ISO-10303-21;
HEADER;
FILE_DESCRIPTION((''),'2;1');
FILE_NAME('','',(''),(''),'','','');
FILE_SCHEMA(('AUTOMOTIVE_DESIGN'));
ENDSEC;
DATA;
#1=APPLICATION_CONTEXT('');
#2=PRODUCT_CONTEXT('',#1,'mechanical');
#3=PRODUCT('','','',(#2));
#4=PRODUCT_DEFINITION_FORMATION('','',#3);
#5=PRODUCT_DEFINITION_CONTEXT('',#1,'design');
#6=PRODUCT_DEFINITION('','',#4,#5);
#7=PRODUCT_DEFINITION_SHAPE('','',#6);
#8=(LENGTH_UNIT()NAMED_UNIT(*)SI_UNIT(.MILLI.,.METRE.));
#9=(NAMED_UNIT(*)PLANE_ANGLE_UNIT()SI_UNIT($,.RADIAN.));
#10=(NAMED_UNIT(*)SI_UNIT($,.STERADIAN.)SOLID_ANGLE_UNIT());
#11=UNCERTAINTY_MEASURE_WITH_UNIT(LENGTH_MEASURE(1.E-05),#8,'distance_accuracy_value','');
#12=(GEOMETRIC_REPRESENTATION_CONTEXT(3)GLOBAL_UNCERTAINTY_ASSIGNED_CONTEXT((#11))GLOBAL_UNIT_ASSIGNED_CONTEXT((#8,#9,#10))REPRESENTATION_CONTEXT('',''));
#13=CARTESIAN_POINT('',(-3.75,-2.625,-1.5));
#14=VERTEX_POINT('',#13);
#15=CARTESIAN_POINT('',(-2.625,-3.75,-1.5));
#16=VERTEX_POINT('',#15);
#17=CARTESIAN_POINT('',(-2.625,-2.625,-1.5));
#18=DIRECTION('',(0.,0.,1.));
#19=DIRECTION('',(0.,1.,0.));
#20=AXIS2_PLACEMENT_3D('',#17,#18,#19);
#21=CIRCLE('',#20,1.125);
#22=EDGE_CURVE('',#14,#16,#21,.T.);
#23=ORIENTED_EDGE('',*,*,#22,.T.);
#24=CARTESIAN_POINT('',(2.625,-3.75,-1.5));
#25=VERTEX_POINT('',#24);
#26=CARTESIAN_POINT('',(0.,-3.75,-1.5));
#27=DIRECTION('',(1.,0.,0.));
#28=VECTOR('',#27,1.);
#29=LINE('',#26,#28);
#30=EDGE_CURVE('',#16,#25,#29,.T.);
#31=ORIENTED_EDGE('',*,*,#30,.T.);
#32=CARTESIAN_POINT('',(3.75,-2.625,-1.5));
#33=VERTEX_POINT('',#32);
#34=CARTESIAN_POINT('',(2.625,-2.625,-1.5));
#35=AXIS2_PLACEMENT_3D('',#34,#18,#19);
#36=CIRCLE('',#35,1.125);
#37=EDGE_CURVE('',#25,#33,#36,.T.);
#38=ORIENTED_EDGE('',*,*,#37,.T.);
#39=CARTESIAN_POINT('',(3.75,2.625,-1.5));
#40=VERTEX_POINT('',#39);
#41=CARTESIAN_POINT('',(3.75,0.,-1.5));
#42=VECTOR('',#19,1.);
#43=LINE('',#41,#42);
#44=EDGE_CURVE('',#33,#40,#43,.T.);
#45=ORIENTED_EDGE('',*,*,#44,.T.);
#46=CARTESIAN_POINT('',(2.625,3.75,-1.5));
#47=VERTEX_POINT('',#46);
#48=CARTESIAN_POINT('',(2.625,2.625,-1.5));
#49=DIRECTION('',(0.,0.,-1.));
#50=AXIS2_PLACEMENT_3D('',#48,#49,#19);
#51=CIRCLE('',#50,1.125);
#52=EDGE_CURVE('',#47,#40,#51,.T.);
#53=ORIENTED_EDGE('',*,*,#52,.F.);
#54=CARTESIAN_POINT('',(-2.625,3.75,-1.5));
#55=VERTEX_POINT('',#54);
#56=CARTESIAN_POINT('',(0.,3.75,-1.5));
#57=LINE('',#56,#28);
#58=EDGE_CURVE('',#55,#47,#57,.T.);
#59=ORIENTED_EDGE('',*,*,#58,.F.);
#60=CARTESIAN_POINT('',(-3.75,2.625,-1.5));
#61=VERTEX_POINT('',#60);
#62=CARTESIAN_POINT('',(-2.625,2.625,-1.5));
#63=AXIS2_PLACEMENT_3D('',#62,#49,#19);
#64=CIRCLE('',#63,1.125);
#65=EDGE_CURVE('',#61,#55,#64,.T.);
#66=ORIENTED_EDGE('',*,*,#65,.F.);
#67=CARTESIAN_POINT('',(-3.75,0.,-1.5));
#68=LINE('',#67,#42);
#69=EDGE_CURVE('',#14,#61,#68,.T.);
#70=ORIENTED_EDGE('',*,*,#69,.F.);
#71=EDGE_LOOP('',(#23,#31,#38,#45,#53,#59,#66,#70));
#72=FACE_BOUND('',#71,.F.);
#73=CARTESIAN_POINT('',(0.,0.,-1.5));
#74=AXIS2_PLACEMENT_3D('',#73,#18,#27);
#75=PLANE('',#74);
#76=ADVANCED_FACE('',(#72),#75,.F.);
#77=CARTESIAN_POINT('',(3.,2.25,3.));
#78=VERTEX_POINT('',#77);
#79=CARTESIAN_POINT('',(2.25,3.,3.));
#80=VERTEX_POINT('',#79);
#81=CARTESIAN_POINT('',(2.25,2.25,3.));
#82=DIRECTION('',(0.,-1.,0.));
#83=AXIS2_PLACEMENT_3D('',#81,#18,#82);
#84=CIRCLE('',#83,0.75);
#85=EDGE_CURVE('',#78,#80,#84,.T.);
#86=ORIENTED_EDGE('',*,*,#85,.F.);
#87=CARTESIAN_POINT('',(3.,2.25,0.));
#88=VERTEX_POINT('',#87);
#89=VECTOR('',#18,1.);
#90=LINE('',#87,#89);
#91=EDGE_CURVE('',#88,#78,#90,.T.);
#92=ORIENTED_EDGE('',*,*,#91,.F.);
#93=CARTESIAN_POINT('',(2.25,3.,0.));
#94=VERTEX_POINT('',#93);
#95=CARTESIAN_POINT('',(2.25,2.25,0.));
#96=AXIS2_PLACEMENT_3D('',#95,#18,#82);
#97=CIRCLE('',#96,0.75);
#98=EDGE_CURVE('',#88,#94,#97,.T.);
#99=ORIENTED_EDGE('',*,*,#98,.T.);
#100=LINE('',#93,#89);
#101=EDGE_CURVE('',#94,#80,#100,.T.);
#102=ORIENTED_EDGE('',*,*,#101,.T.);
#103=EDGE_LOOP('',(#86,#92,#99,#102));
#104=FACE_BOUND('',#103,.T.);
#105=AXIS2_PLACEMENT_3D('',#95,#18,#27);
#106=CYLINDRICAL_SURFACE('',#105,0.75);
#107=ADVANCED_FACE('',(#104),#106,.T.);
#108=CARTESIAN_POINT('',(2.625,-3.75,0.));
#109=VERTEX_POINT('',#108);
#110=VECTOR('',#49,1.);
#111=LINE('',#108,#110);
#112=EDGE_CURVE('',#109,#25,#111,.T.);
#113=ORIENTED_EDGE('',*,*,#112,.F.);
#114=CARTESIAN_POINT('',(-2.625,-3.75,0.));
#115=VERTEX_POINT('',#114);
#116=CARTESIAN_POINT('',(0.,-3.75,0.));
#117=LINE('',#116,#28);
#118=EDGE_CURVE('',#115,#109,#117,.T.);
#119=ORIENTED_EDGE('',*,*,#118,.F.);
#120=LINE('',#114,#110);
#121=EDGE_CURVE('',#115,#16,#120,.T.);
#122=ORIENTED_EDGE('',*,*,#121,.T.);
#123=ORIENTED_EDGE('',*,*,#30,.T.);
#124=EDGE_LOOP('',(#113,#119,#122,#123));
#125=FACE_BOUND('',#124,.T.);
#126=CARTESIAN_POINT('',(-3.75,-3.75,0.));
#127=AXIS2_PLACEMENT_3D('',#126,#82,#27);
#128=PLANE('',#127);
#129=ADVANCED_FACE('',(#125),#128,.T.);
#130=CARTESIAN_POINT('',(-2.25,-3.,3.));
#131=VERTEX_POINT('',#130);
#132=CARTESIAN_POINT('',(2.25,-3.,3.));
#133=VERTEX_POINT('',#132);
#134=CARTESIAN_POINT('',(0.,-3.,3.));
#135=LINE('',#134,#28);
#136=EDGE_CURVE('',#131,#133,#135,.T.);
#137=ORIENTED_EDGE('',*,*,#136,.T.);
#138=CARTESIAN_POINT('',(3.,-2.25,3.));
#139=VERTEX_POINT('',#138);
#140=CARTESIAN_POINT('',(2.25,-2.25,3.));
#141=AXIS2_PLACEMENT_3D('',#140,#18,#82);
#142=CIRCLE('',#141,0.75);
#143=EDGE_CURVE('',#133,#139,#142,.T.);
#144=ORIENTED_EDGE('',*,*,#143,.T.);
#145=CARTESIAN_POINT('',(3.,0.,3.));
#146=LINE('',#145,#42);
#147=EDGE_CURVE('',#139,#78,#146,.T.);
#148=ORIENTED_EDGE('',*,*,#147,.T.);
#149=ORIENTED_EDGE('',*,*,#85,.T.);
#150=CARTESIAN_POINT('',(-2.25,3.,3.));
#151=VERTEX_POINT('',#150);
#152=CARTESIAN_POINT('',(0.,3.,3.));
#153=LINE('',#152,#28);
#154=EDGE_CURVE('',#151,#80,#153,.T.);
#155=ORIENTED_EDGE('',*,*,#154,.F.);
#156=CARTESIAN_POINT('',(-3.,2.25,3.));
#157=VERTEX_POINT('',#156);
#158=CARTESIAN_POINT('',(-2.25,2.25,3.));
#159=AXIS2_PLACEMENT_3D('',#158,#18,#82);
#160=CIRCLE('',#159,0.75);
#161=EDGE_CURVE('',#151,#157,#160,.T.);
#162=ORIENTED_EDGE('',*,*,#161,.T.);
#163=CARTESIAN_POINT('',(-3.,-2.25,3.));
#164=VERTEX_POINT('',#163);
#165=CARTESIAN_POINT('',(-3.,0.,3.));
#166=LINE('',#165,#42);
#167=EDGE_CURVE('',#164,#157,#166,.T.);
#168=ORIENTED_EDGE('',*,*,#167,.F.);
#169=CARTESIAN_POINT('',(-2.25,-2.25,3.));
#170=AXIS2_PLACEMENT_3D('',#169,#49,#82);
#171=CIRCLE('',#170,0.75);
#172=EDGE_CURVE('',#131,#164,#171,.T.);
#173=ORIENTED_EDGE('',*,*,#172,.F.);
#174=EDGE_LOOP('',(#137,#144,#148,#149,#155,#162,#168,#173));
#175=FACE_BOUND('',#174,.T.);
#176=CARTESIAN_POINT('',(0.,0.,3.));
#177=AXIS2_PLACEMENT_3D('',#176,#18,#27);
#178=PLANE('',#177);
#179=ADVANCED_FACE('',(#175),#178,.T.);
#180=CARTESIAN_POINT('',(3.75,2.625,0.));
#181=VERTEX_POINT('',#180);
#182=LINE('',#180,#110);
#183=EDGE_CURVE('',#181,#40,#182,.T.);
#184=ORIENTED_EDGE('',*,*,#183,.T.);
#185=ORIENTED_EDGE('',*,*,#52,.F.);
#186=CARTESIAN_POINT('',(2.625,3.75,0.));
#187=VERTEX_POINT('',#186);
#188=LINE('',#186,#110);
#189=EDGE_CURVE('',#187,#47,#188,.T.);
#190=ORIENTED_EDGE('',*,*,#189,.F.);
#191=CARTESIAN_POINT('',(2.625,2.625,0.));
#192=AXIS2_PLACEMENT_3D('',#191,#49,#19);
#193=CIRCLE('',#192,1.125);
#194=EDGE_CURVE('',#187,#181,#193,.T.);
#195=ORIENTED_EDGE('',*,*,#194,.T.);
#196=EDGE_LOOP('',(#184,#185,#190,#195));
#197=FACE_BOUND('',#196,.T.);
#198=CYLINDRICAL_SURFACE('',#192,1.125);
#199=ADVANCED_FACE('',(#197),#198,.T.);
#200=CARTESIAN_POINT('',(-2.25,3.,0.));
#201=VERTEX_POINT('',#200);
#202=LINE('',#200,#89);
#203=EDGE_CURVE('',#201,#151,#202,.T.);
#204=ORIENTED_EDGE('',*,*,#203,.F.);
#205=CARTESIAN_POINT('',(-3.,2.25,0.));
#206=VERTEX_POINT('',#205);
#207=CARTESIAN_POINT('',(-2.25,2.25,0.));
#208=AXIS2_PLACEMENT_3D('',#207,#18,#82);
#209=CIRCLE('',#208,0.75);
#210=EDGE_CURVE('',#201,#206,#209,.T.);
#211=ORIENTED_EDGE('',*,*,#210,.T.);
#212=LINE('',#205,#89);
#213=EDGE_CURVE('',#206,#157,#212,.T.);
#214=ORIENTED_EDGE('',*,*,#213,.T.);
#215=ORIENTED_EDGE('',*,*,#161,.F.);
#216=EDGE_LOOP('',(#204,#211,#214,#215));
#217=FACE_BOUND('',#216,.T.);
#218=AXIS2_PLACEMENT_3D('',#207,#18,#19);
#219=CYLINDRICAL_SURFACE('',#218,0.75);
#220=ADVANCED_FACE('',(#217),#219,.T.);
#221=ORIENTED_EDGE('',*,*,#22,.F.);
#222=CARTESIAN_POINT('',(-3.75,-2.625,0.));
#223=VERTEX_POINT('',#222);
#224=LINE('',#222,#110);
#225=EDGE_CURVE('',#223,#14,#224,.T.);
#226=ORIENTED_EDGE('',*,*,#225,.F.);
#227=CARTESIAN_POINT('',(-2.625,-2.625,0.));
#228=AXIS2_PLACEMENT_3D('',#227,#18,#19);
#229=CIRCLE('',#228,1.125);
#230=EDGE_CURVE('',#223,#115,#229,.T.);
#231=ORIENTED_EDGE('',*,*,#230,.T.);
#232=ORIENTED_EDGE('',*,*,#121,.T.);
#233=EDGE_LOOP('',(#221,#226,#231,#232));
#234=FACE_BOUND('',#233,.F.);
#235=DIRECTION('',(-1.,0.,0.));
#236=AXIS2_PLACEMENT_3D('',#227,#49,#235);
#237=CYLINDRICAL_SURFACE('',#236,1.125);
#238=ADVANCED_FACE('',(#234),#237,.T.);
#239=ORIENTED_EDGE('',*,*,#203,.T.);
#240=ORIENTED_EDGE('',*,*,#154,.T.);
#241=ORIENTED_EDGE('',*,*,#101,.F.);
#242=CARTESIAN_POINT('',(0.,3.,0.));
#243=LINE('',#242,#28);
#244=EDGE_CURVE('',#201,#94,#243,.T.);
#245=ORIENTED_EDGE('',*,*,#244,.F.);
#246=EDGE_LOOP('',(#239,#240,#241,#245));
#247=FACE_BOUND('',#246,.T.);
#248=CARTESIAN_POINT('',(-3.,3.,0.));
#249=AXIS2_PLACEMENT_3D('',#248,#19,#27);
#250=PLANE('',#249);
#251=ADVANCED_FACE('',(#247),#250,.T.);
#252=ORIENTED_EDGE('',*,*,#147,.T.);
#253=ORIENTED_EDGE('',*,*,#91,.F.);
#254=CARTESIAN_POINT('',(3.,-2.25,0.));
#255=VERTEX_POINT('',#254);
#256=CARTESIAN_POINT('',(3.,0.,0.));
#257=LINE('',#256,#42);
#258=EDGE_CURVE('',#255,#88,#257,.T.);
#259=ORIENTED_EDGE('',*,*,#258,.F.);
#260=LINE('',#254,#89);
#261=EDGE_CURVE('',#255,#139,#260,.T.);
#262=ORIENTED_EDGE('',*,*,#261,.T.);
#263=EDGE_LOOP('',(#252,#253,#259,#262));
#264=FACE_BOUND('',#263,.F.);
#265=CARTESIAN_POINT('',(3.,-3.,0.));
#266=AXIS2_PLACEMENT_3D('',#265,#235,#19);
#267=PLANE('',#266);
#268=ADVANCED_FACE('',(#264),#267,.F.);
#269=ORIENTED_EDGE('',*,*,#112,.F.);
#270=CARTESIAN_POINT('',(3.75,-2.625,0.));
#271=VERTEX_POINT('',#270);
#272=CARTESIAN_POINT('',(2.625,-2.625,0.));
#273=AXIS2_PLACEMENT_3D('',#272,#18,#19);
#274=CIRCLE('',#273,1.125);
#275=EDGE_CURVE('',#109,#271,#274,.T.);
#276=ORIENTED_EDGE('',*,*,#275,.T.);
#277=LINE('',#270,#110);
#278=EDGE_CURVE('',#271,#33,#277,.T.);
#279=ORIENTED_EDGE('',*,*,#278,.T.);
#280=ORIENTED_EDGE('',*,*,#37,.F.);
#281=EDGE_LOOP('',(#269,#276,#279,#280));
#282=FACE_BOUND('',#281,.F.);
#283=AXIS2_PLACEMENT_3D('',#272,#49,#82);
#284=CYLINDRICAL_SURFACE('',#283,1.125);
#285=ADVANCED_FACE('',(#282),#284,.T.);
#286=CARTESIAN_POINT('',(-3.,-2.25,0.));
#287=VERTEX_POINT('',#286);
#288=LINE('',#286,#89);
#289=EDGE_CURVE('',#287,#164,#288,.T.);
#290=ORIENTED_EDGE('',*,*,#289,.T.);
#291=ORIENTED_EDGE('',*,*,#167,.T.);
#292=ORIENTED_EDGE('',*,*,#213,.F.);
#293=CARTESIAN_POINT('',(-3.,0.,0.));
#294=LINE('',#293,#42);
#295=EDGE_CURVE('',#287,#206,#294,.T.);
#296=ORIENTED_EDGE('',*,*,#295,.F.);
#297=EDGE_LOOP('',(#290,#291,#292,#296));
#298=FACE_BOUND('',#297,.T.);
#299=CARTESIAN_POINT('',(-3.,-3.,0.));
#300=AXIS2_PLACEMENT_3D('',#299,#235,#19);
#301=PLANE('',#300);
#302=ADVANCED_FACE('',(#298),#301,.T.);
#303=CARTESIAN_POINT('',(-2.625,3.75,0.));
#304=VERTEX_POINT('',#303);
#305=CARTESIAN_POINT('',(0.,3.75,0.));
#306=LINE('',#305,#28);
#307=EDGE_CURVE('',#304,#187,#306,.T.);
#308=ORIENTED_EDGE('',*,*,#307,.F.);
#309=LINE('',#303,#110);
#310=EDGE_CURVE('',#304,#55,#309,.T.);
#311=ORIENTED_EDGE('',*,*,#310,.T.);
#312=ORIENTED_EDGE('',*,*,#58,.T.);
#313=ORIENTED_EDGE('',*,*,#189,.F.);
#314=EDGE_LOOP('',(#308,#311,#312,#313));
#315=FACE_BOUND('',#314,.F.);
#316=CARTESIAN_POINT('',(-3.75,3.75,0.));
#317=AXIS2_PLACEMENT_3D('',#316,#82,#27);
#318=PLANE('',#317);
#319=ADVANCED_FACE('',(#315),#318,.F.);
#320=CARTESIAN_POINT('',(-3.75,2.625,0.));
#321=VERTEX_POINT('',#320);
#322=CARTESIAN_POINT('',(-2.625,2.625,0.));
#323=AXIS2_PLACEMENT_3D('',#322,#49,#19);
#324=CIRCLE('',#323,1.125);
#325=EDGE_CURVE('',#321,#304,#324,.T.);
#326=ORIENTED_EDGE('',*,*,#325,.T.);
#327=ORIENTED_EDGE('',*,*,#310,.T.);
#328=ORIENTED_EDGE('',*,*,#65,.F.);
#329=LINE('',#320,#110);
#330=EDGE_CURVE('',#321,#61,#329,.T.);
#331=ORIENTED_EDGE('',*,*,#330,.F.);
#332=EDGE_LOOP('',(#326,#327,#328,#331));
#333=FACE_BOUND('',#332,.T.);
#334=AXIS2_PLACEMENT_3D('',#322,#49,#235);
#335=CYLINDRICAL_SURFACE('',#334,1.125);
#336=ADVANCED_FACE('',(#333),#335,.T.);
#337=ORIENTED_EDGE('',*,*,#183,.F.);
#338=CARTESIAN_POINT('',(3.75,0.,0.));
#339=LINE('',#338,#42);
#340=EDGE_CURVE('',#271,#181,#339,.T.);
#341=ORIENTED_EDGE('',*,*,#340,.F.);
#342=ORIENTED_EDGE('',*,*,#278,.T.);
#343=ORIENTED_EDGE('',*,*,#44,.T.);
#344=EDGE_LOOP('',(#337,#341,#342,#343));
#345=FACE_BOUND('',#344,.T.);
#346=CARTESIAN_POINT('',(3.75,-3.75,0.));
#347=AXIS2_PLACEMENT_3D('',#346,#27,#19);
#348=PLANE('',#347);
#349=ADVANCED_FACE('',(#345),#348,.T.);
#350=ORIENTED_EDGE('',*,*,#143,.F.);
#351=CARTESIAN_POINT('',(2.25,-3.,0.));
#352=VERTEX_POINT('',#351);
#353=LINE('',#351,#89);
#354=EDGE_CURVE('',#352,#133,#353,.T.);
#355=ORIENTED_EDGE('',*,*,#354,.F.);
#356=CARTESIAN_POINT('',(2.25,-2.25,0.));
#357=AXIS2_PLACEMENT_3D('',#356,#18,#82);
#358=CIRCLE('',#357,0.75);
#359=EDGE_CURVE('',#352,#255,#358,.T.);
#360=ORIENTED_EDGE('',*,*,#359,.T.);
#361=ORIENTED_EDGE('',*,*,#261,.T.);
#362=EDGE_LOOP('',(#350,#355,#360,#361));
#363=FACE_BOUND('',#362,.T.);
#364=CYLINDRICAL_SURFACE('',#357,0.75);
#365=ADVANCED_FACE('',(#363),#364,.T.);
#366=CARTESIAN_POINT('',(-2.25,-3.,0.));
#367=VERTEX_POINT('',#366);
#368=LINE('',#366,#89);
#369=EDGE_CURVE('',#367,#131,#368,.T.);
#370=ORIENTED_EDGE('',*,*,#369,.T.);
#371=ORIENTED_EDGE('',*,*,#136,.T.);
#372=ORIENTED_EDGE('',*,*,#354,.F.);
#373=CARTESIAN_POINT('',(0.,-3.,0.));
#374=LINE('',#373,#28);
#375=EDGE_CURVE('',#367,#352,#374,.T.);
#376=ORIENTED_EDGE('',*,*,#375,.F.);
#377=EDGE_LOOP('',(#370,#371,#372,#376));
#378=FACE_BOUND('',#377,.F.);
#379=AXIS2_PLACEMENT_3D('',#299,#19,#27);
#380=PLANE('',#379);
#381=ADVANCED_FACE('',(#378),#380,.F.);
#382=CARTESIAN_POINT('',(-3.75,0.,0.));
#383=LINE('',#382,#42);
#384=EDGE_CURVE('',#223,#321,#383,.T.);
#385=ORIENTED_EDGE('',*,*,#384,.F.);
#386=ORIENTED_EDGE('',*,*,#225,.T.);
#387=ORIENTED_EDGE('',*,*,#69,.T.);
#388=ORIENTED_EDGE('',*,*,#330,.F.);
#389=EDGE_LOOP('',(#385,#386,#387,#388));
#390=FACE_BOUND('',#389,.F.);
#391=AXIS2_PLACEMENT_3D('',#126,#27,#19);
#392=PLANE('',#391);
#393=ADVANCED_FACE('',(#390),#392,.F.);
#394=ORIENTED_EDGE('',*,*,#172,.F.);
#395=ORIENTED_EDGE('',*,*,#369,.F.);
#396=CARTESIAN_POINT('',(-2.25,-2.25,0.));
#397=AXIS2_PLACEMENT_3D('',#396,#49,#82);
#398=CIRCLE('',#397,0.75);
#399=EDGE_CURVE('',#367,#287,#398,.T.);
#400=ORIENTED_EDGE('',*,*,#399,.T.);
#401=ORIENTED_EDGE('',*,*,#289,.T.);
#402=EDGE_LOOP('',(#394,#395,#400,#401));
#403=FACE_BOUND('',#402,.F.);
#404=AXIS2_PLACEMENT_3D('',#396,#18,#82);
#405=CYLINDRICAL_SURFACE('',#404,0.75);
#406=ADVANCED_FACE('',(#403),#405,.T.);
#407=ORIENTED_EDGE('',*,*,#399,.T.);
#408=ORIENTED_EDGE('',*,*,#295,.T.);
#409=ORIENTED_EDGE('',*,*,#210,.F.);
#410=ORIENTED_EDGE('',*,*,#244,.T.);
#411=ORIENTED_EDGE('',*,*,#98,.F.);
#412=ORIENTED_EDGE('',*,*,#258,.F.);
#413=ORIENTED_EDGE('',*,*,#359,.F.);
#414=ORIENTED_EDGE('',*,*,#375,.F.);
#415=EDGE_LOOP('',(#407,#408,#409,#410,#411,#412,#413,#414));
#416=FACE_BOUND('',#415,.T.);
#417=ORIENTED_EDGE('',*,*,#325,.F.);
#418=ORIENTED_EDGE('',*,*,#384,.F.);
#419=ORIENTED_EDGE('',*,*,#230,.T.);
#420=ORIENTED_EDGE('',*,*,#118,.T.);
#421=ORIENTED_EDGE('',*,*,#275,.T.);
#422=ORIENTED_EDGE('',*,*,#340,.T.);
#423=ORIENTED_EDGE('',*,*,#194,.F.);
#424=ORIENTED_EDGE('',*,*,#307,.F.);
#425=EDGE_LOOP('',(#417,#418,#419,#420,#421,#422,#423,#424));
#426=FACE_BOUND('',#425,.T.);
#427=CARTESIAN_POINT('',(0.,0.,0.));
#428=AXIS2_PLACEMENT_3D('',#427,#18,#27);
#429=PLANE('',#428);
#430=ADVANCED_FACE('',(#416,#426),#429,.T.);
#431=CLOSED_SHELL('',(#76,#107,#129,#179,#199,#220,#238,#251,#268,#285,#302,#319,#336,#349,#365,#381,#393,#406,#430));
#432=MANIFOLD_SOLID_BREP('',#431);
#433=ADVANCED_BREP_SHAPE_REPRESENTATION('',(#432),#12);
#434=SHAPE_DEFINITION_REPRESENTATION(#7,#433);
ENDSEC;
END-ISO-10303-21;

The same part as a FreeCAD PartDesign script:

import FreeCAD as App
import Part
import Sketcher
from FreeCAD import Vector
Q = App.Units.Quantity


def edges_at(feature, points):
    """Names of the edges that pass closest to the given points."""
    edges = feature.Shape.Edges
    near = lambda p: min(range(len(edges)), key=lambda i: edges[i].distToShape(Part.Vertex(*p))[0])
    return sorted({f"Edge{near(p) + 1}" for p in points})


def add_polygon(sketch, points):
    """Adds a closed chain of lines whose ends are joined by coincident constraints."""
    first, n = sketch.GeometryCount, len(points)
    for a, b in zip(points, points[1:] + points[:1]):
        sketch.addGeometry(Part.LineSegment(App.Vector(*a, 0), App.Vector(*b, 0)), False)
    for i in range(n):
        sketch.addConstraint(Sketcher.Constraint("Coincident", first + i, 2, first + (i + 1) % n, 1))

doc = App.newDocument("Part")
body = doc.addObject("PartDesign::Body", "Body")

# Sketch on XY plane
sketch1 = body.newObject("Sketcher::SketchObject", "Sketch")
sketch1.AttachmentSupport = (doc.getObject("XY_Plane"), [""])
sketch1.MapMode = "FlatFace"
add_polygon(sketch1, [(-3, 3), (-3, -3), (3, -3), (3, 3)])  # lines 0-3
sketch1.addConstraint([
    Sketcher.Constraint("Vertical", 0),
    Sketcher.Constraint("Horizontal", 1),
    Sketcher.Constraint("Vertical", 2),
    Sketcher.Constraint("Horizontal", 3),
    Sketcher.Constraint("Symmetric", 0, 2, 2, 2, -1, 1),
    Sketcher.Constraint("Equal", 3, 0),
    Sketcher.Constraint("DistanceX", 1, 1, 1, 2, Q("6 mm")),
])
pad1 = body.newObject("PartDesign::Pad", "Pad")
pad1.Profile = sketch1
pad1.Length = 3

# Sketch on XY plane
sketch2 = body.newObject("Sketcher::SketchObject", "Sketch001")
sketch2.AttachmentSupport = (doc.getObject("XY_Plane"), [""])
sketch2.MapMode = "FlatFace"
add_polygon(sketch2, [(-3.75, 3.75), (-3.75, -3.75), (3.75, -3.75), (3.75, 3.75)])  # lines 0-3
sketch2.addConstraint([
    Sketcher.Constraint("Vertical", 0),
    Sketcher.Constraint("Horizontal", 1),
    Sketcher.Constraint("Vertical", 2),
    Sketcher.Constraint("Horizontal", 3),
    Sketcher.Constraint("Symmetric", 0, 2, 2, 2, -1, 1),
    Sketcher.Constraint("Equal", 3, 0),
    Sketcher.Constraint("DistanceX", 1, 1, 1, 2, Q("7.5 mm")),
])
pad2 = body.newObject("PartDesign::Pad", "Pad001")
pad2.Profile = sketch2
pad2.Length = 1.5
pad2.Reversed = True
doc.recompute()

fillet = body.newObject("PartDesign::Fillet", "Fillet")
fillet.Base = (pad2, edges_at(pad2, [
    (3.75, -3.75, -0.75),
    (3.75, 3.75, -0.75),
    (-3.75, 3.75, -0.75),
    (-3.75, -3.75, -0.75),
]))
fillet.Radius = 1.125
doc.recompute()

fillet2 = body.newObject("PartDesign::Fillet", "Fillet001")
fillet2.Base = (fillet, edges_at(fillet, [
    (3, -3, 1.5),
    (3, 3, 1.5),
    (-3, 3, 1.5),
    (-3, -3, 1.5),
]))
fillet2.Radius = 0.75

doc.recompute()
